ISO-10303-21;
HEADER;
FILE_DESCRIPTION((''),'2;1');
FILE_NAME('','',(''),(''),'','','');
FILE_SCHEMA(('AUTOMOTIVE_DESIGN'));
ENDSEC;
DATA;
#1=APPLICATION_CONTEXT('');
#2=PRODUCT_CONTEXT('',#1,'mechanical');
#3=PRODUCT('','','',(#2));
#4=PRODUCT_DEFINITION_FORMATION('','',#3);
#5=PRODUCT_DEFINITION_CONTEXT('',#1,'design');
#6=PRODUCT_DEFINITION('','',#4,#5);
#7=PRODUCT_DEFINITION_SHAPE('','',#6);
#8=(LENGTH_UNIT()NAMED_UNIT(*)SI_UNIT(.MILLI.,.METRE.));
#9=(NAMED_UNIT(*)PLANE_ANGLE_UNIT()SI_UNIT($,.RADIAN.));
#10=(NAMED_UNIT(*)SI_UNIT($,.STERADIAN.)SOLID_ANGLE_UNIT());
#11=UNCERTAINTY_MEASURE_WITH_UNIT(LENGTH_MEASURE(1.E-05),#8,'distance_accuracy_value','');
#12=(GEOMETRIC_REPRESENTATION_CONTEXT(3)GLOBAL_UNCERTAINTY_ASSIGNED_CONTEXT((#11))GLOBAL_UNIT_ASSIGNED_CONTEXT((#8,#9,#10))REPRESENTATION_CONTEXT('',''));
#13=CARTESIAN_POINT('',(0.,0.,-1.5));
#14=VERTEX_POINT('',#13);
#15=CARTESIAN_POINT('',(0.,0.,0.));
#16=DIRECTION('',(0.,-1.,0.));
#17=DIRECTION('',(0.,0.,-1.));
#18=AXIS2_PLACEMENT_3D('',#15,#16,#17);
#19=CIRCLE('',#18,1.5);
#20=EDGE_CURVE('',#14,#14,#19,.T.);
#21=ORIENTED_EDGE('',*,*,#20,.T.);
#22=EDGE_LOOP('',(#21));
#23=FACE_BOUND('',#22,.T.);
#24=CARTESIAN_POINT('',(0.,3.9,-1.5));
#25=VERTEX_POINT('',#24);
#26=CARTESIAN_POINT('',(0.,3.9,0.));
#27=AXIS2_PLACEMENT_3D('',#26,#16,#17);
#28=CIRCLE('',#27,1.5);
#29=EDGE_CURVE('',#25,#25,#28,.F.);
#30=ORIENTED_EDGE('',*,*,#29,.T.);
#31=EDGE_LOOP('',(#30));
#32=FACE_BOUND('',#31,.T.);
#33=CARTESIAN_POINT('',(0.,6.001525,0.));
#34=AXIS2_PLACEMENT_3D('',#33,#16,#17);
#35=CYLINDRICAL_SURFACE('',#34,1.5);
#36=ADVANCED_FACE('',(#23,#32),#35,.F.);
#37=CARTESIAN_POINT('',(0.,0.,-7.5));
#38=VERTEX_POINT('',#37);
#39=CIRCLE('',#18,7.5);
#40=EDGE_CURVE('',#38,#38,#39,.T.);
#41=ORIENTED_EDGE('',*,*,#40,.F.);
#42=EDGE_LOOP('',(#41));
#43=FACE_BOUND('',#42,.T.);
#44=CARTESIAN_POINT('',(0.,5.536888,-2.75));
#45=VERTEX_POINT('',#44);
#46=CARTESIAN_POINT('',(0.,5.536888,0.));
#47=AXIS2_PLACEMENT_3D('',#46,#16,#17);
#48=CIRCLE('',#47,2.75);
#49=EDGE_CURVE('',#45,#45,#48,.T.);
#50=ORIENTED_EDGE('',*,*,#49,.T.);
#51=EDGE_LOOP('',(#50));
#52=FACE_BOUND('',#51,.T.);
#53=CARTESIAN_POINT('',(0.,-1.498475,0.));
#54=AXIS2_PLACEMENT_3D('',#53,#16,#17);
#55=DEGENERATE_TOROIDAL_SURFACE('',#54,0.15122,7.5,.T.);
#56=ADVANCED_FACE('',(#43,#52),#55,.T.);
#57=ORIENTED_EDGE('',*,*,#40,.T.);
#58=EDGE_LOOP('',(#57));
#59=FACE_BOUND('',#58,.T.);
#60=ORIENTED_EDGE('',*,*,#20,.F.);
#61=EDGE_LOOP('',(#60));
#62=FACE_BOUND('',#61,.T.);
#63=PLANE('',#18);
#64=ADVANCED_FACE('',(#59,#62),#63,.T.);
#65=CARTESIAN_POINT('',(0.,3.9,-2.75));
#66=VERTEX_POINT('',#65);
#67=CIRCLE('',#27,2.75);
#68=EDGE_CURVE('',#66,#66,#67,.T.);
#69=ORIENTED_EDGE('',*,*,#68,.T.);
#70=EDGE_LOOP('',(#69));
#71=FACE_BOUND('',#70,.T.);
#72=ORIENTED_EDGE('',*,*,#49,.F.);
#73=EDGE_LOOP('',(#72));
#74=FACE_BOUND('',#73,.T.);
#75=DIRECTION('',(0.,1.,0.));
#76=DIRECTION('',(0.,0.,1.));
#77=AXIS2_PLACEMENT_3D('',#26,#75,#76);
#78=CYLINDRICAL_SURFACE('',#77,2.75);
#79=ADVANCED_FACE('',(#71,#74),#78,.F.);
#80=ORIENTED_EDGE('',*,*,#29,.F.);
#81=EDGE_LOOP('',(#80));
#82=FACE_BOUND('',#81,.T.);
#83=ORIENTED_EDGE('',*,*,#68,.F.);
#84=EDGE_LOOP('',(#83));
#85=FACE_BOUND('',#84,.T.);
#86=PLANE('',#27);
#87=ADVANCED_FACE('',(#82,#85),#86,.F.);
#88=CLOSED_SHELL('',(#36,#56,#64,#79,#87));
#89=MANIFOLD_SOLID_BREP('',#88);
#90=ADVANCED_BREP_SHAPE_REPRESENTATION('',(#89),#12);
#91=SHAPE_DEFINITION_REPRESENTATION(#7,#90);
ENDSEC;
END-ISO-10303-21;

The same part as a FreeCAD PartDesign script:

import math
import FreeCAD as App
import Part
import Sketcher
from FreeCAD import Vector

doc = App.newDocument("Part")
body = doc.addObject("PartDesign::Body", "Body")

# Sketch on XY plane
sketch1 = body.newObject("Sketcher::SketchObject", "Sketch")
sketch1.AttachmentSupport = (doc.getObject("XY_Plane"), [""])
sketch1.MapMode = "FlatFace"
sketch1.addGeometry([
    Part.LineSegment(Vector(0, 0, 0), Vector(8, 0, 0)),
    Part.ArcOfCircle(Part.Circle(Vector(0, -1, 0), Vector(0, 0, 1), 8), math.radians(12), math.radians(91)),
    Part.LineSegment(Vector(0, 6, 0), Vector(0, 0, 0)),
], False)
sketch1.addConstraint([
    Sketcher.Constraint("Coincident", 0, 2, 1, 1),
    Sketcher.Constraint("Coincident", 1, 2, 2, 1),
    Sketcher.Constraint("Coincident", 2, 2, 0, 1),
    Sketcher.Constraint("Horizontal", 0),
    Sketcher.Constraint("Vertical", 2),
    Sketcher.Constraint("Coincident", 2, 2, -1, 1),
    Sketcher.Constraint("Radius", 1, 7.5),
    Sketcher.Constraint("DistanceY", 2, 2, 2, 1, 6.0),
    Sketcher.Constraint("DistanceX", 0, 1, 0, 2, 7.5),
])
revolution = body.newObject("PartDesign::Revolution", "Revolution")
revolution.Profile = sketch1
revolution.ReferenceAxis = (sketch1, ["V_Axis"])
revolution.Angle = 360

# Sketch on XZ plane
sketch2 = body.newObject("Sketcher::SketchObject", "Sketch001")
sketch2.AttachmentSupport = (doc.getObject("XZ_Plane"), [""])
sketch2.MapMode = "FlatFace"
sketch2.addGeometry(Part.Circle(Vector(0, 0, 0), Vector(0, 0, 1), 1.5), False)
sketch2.addConstraint([
    Sketcher.Constraint("Coincident", 0, 3, -1, 1),
    Sketcher.Constraint("Diameter", 0, 3.0),
])
pocket1 = body.newObject("PartDesign::Pocket", "Pocket")
pocket1.Profile = sketch2
pocket1.Type = "ThroughAll"

# Sketch on XZ plane
sketch3 = body.newObject("Sketcher::SketchObject", "Sketch002")
sketch3.AttachmentSupport = (doc.getObject("XZ_Plane"), [""])
sketch3.MapMode = "FlatFace"
sketch3.AttachmentOffset = App.Placement(Vector(0, 0, -6), App.Rotation())
sketch3.addGeometry(Part.Circle(Vector(0, 0, 0), Vector(0, 0, 1), 2.8), False)
sketch3.addConstraint([
    Sketcher.Constraint("Coincident", 0, 3, -1, 1),
    Sketcher.Constraint("Diameter", 0, 5.5),
])
pocket2 = body.newObject("PartDesign::Pocket", "Pocket001")
pocket2.Profile = sketch3
pocket2.Length = 2.1
pocket2.Reversed = True

doc.recompute()
